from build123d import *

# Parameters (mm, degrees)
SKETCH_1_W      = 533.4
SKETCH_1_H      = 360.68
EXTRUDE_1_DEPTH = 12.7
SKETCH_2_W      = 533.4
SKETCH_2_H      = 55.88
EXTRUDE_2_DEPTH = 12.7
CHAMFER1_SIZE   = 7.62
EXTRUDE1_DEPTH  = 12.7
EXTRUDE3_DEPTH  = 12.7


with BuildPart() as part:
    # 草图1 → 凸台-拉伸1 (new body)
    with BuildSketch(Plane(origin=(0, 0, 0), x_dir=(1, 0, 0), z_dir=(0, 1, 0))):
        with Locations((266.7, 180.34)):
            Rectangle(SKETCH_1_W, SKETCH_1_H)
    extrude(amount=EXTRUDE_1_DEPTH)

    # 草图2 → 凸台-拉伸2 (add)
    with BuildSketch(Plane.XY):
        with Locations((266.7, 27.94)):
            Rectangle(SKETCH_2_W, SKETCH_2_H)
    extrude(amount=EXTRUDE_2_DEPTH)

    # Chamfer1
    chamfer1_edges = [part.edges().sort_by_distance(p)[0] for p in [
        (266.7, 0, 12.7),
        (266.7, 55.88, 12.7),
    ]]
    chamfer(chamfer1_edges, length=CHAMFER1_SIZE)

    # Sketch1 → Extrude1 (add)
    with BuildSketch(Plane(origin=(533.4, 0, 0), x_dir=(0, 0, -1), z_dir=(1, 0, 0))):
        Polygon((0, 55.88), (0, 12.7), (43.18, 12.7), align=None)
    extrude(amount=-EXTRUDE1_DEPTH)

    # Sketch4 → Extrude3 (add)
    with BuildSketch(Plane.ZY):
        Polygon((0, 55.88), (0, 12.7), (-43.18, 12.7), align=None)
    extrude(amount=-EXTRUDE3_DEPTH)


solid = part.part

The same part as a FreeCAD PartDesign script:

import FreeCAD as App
import Part
import Sketcher
Q = App.Units.Quantity


def edges_at(feature, points):
    """Names of the edges that pass closest to the given points."""
    edges = feature.Shape.Edges
    near = lambda p: min(range(len(edges)), key=lambda i: edges[i].distToShape(Part.Vertex(*p))[0])
    return sorted({f"Edge{near(p) + 1}" for p in points})


def add_polygon(sketch, points):
    """Adds a closed chain of lines whose ends are joined by coincident constraints."""
    first, n = sketch.GeometryCount, len(points)
    for a, b in zip(points, points[1:] + points[:1]):
        sketch.addGeometry(Part.LineSegment(App.Vector(*a, 0), App.Vector(*b, 0)), False)
    for i in range(n):
        sketch.addConstraint(Sketcher.Constraint("Coincident", first + i, 2, first + (i + 1) % n, 1))

doc = App.newDocument("Part")
body = doc.addObject("PartDesign::Body", "Body")

# Sketch on XZ plane
sketch1 = body.newObject("Sketcher::SketchObject", "Sketch")
sketch1.AttachmentSupport = (doc.getObject("XZ_Plane"), [""])
sketch1.MapMode = "FlatFace"
add_polygon(sketch1, [(0, -361), (0, 0), (533, 0), (533, -361)])  # lines 0-3
sketch1.addConstraint([
    Sketcher.Constraint("Vertical", 0),
    Sketcher.Constraint("Horizontal", 1),
    Sketcher.Constraint("Vertical", 2),
    Sketcher.Constraint("Horizontal", 3),
    Sketcher.Constraint("Coincident", 0, 2, -1, 1),
    Sketcher.Constraint("DistanceX", 1, 1, 1, 2, Q("21 in")),
    Sketcher.Constraint("DistanceY", 0, 1, 0, 2, Q("14.2 in")),
])
pad1 = body.newObject("PartDesign::Pad", "Pad")
pad1.Profile = sketch1
pad1.Length = Q("0.5 in")
pad1.Reversed = True

# Sketch on XY plane
sketch2 = body.newObject("Sketcher::SketchObject", "Sketch001")
sketch2.AttachmentSupport = (doc.getObject("XY_Plane"), [""])
sketch2.MapMode = "FlatFace"
add_polygon(sketch2, [(0, 56), (0, 0), (533, 0), (533, 56)])  # lines 0-3
sketch2.addConstraint([
    Sketcher.Constraint("Vertical", 0),
    Sketcher.Constraint("Horizontal", 1),
    Sketcher.Constraint("Vertical", 2),
    Sketcher.Constraint("Horizontal", 3),
    Sketcher.Constraint("Coincident", 0, 2, -1, 1),
    Sketcher.Constraint("DistanceX", 1, 1, 1, 2, Q("21 in")),
    Sketcher.Constraint("DistanceY", 0, 2, 0, 1, Q("2.2 in")),
])
pad2 = body.newObject("PartDesign::Pad", "Pad001")
pad2.Profile = sketch2
pad2.Length = Q("0.5 in")
doc.recompute()

chamfer = body.newObject("PartDesign::Chamfer", "Chamfer")
chamfer.Base = (pad2, edges_at(pad2, [(266.7, 0, 12.7), (266.7, 55.88, 12.7)]))
chamfer.Size = Q("0.3 in")

# Sketch on YZ plane
sketch3 = body.newObject("Sketcher::SketchObject", "Sketch002")
sketch3.AttachmentSupport = (doc.getObject("YZ_Plane"), [""])
sketch3.MapMode = "FlatFace"
sketch3.AttachmentOffset = App.Placement(App.Vector(0, 0, 21 * 25.4), App.Rotation())
add_polygon(sketch3, [(56, 0), (13, 0), (13, -43)])  # lines 0-2
sketch3.addConstraint([
    Sketcher.Constraint("Horizontal", 0),
    Sketcher.Constraint("Vertical", 1),
    Sketcher.Constraint("PointOnObject", 0, 2, -1),
    Sketcher.Constraint("Equal", 0, 1),
    Sketcher.Constraint("DistanceX", 0, 2, 0, 1, Q("1.7 in")),
    Sketcher.Constraint("DistanceX", -1, 1, 0, 2, Q("0.5 in")),
])
pad3 = body.newObject("PartDesign::Pad", "Pad002")
pad3.Profile = sketch3
pad3.Length = Q("0.5 in")
pad3.Reversed = True

# Sketch on YZ plane
sketch4 = body.newObject("Sketcher::SketchObject", "Sketch003")
sketch4.AttachmentSupport = (doc.getObject("YZ_Plane"), [""])
sketch4.MapMode = "FlatFace"
add_polygon(sketch4, [(13, 0), (56, 0), (13, -43)])  # lines 0-2
sketch4.addConstraint([
    Sketcher.Constraint("Horizontal", 0),
    Sketcher.Constraint("Vertical", 2),
    Sketcher.Constraint("PointOnObject", 0, 2, -1),
    Sketcher.Constraint("Equal", 0, 2),
    Sketcher.Constraint("DistanceX", 0, 1, 0, 2, Q("1.7 in")),
    Sketcher.Constraint("DistanceX", -1, 1, 0, 2, Q("2.2 in")),
])
pad4 = body.newObject("PartDesign::Pad", "Pad003")
pad4.Profile = sketch4
pad4.Length = Q("0.5 in")

doc.recompute()
